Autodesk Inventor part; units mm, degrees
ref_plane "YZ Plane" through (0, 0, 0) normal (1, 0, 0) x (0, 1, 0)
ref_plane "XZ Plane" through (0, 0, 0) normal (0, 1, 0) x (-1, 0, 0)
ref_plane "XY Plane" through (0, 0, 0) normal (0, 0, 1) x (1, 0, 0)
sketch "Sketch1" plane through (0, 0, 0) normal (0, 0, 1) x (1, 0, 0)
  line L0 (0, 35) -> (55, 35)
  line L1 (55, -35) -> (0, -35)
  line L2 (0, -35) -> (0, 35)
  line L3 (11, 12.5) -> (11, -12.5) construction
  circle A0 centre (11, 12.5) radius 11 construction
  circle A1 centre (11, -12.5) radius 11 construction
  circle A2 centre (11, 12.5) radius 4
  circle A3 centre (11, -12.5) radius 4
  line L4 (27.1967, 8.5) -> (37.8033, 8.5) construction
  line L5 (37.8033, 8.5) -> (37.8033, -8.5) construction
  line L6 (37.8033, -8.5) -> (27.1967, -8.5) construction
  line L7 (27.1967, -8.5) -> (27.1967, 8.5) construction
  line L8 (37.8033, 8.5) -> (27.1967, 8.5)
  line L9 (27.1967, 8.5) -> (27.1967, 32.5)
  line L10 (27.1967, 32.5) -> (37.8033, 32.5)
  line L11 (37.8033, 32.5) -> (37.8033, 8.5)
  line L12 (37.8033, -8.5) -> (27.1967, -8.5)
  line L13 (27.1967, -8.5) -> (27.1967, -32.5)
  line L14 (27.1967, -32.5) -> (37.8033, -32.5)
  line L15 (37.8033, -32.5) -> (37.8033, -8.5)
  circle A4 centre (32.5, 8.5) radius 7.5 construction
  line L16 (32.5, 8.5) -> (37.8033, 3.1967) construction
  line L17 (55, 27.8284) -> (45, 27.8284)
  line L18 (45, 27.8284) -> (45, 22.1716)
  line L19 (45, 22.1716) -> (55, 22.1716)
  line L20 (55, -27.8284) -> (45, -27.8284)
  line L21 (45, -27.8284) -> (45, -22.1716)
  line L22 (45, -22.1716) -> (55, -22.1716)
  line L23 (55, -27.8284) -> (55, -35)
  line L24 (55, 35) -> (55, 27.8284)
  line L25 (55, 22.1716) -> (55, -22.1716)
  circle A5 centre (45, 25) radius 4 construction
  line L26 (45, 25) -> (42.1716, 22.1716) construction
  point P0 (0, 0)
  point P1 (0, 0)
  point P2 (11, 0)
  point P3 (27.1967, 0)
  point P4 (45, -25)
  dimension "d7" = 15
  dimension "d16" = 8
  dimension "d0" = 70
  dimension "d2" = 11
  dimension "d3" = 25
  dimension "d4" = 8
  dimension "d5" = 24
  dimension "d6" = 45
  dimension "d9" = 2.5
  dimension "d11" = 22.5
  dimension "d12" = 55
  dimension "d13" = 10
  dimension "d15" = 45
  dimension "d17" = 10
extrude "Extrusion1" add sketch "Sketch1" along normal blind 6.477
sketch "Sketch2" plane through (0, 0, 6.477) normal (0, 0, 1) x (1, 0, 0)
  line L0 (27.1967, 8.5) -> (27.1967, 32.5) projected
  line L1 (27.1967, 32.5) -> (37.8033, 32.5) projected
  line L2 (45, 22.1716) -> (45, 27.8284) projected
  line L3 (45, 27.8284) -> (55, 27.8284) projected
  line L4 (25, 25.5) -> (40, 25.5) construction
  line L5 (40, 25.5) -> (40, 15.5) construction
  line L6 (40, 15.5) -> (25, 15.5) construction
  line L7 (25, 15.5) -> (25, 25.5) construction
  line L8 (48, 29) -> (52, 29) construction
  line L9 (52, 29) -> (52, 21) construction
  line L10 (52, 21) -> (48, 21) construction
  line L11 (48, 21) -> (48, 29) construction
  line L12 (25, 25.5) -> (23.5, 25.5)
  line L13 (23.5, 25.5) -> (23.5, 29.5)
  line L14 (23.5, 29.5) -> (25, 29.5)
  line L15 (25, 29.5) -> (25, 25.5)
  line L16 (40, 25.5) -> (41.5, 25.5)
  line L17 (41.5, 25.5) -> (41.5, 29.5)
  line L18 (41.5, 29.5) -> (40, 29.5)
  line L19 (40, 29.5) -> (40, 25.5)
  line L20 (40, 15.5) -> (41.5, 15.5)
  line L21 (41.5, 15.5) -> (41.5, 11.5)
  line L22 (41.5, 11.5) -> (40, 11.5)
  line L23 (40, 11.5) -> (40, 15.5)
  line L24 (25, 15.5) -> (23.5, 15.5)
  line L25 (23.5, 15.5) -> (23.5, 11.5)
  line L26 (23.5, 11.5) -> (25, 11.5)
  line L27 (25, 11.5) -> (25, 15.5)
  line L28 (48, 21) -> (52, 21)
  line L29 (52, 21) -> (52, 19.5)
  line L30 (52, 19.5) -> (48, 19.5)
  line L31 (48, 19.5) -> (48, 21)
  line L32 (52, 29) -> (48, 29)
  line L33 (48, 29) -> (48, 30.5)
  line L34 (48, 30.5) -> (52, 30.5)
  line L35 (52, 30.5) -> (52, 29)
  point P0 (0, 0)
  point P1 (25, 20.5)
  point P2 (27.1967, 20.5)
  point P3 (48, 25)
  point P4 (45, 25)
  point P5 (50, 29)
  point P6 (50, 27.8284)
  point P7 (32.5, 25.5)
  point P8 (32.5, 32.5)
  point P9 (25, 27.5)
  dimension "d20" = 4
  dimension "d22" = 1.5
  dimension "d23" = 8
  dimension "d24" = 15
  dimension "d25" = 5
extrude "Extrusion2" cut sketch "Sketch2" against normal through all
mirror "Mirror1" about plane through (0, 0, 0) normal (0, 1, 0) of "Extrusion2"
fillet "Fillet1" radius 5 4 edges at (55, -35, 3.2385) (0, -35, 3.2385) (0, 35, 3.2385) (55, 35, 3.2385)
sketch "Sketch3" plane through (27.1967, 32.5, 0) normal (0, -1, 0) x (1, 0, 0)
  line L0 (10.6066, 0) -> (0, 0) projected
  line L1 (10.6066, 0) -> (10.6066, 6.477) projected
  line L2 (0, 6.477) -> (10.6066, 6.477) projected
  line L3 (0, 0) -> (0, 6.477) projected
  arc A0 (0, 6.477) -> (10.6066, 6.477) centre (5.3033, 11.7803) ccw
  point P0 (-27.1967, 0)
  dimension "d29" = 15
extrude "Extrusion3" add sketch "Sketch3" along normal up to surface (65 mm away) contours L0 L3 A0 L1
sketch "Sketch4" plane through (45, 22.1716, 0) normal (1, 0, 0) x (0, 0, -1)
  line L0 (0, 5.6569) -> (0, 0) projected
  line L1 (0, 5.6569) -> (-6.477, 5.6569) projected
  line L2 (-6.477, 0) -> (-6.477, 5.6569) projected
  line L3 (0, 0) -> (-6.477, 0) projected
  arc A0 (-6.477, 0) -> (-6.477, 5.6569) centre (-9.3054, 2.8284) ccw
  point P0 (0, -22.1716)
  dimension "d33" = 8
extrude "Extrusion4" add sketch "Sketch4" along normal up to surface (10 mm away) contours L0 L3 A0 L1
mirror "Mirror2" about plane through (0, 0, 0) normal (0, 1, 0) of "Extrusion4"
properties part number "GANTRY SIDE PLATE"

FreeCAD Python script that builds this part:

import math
import FreeCAD as App
import Part
import Sketcher

V = App.Vector
Q = App.Units.Quantity


def edges_at(feature, points):
    """Names of the edges that pass closest to the given points."""
    edges = feature.Shape.Edges
    near = lambda p: min(range(len(edges)), key=lambda i: edges[i].distToShape(Part.Vertex(*p))[0])
    return sorted({f"Edge{near(p) + 1}" for p in points})

doc = App.newDocument("Part")
body = doc.addObject("PartDesign::Body", "Body")

# Sketch on XY plane
sketch1 = body.newObject("Sketcher::SketchObject", "Sketch")
sketch1.AttachmentSupport = (doc.getObject("XY_Plane"), [""])
sketch1.MapMode = "FlatFace"
sketch1.addGeometry([
    Part.LineSegment(V(55, 35, 0), V(0, 35, 0)),  # 0
    Part.LineSegment(V(0, 35, 0), V(0, -35, 0)),  # 1
    Part.LineSegment(V(0, -35, 0), V(55, -35, 0)),  # 2
    Part.LineSegment(V(55, -35, 0), V(55, -27.8284, 0)),  # 3
    Part.LineSegment(V(55, -27.8284, 0), V(45, -27.8284, 0)),  # 4
    Part.LineSegment(V(45, -27.8284, 0), V(45, -22.1716, 0)),  # 5
    Part.LineSegment(V(45, -22.1716, 0), V(55, -22.1716, 0)),  # 6
    Part.LineSegment(V(55, -22.1716, 0), V(55, 22.1716, 0)),  # 7
    Part.LineSegment(V(55, 22.1716, 0), V(45, 22.1716, 0)),  # 8
    Part.LineSegment(V(45, 22.1716, 0), V(45, 27.8284, 0)),  # 9
    Part.LineSegment(V(45, 27.8284, 0), V(55, 27.8284, 0)),  # 10
    Part.LineSegment(V(55, 27.8284, 0), V(55, 35, 0)),  # 11
    Part.Circle(V(11, -12.5, 0), V(0, 0, 1), 4),  # 12
    Part.LineSegment(V(27.1967, -8.5, 0), V(37.8033, -8.5, 0)),  # 13
    Part.LineSegment(V(37.8033, -8.5, 0), V(37.8033, -32.5, 0)),  # 14
    Part.LineSegment(V(37.8033, -32.5, 0), V(27.1967, -32.5, 0)),  # 15
    Part.LineSegment(V(27.1967, -32.5, 0), V(27.1967, -8.5, 0)),  # 16
    Part.Circle(V(11, 12.5, 0), V(0, 0, 1), 4),  # 17
    Part.LineSegment(V(37.8033, 32.5, 0), V(37.8033, 8.5, 0)),  # 18
    Part.LineSegment(V(37.8033, 8.5, 0), V(27.1967, 8.5, 0)),  # 19
    Part.LineSegment(V(27.1967, 8.5, 0), V(27.1967, 32.5, 0)),  # 20
    Part.LineSegment(V(27.1967, 32.5, 0), V(37.8033, 32.5, 0)),  # 21
], False)
sketch1.addConstraint([
    Sketcher.Constraint("Coincident", 0, 2, 1, 1),
    Sketcher.Constraint("Coincident", 1, 2, 2, 1),
    Sketcher.Constraint("Coincident", 2, 2, 3, 1),
    Sketcher.Constraint("Coincident", 3, 2, 4, 1),
    Sketcher.Constraint("Coincident", 4, 2, 5, 1),
    Sketcher.Constraint("Coincident", 5, 2, 6, 1),
    Sketcher.Constraint("Coincident", 6, 2, 7, 1),
    Sketcher.Constraint("Coincident", 7, 2, 8, 1),
    Sketcher.Constraint("Coincident", 8, 2, 9, 1),
    Sketcher.Constraint("Coincident", 9, 2, 10, 1),
    Sketcher.Constraint("Coincident", 10, 2, 11, 1),
    Sketcher.Constraint("Coincident", 11, 2, 0, 1),
    Sketcher.Constraint("Coincident", 13, 2, 14, 1),
    Sketcher.Constraint("Coincident", 14, 2, 15, 1),
    Sketcher.Constraint("Coincident", 15, 2, 16, 1),
    Sketcher.Constraint("Coincident", 16, 2, 13, 1),
    Sketcher.Constraint("Coincident", 18, 2, 19, 1),
    Sketcher.Constraint("Coincident", 19, 2, 20, 1),
    Sketcher.Constraint("Coincident", 20, 2, 21, 1),
    Sketcher.Constraint("Coincident", 21, 2, 18, 1),
    Sketcher.Constraint("Horizontal", 0),
    Sketcher.Constraint("Vertical", 1),
    Sketcher.Constraint("Horizontal", 2),
    Sketcher.Constraint("Vertical", 3),
    Sketcher.Constraint("Horizontal", 4),
    Sketcher.Constraint("Vertical", 5),
    Sketcher.Constraint("Horizontal", 6),
    Sketcher.Constraint("Vertical", 7),
    Sketcher.Constraint("Horizontal", 8),
    Sketcher.Constraint("Vertical", 9),
    Sketcher.Constraint("Horizontal", 10),
    Sketcher.Constraint("Vertical", 11),
    Sketcher.Constraint("Horizontal", 13),
    Sketcher.Constraint("Vertical", 14),
    Sketcher.Constraint("Horizontal", 15),
    Sketcher.Constraint("Vertical", 16),
    Sketcher.Constraint("Vertical", 18),
    Sketcher.Constraint("Horizontal", 19),
    Sketcher.Constraint("Vertical", 20),
    Sketcher.Constraint("Horizontal", 21),
    Sketcher.Constraint("Equal", 12, 17),
    Sketcher.Constraint("Symmetric", 0, 2, 1, 2, -1, 1),
    Sketcher.Constraint("Symmetric", 12, 3, 17, 3, -1),
    Sketcher.Constraint("Symmetric", 5, 2, 8, 2, -1),
    Sketcher.Constraint("Symmetric", 3, 2, 10, 2, -1),
    Sketcher.Constraint("Symmetric", 13, 2, 18, 2, -1),
    Sketcher.Constraint("Symmetric", 15, 2, 20, 2, -1),
    Sketcher.Constraint("Vertical", 3, 2, 6, 2),
    Sketcher.Constraint("Diameter", 12, Q("8 mm")),
    Sketcher.Constraint("DistanceX", 0, 2, 0, 1, Q("55 mm")),
    Sketcher.Constraint("DistanceX", 4, 2, 4, 1, Q("10 mm")),
    Sketcher.Constraint("DistanceY", 1, 2, 1, 1, Q("70 mm")),
    Sketcher.Constraint("DistanceY", 14, 2, 14, 1, Q("24 mm")),
    Sketcher.Constraint("DistanceX", -1, 1, 12, 3, Q("11 mm")),
    Sketcher.Constraint("DistanceY", 12, 3, 17, 3, Q("25 mm")),
    Sketcher.Constraint("DistanceY", 2, 2, 14, 2, Q("2.5 mm")),
    Sketcher.Constraint("DistanceY", 3, 2, 7, 2, Q("50 mm")),
    Sketcher.Constraint("DistanceX", 13, 1, 13, 2, Q("10.6066 mm")),
    Sketcher.Constraint("DistanceY", 3, 1, 3, 2, Q("7.1716 mm")),
    Sketcher.Constraint("DistanceX", -1, 1, 13, 2, Q("37.8033 mm")),
])
pad1 = body.newObject("PartDesign::Pad", "Pad")
pad1.Profile = sketch1
pad1.Length = 6.477

# Sketch on XY plane
sketch2 = body.newObject("Sketcher::SketchObject", "Sketch001")
sketch2.AttachmentSupport = (doc.getObject("XY_Plane"), [""])
sketch2.MapMode = "FlatFace"
sketch2.AttachmentOffset = App.Placement(V(0, 0, 6.477), App.Rotation())
sketch2.addGeometry([
    Part.LineSegment(V(23.5, 25.5, 0), V(25, 25.5, 0)),  # 0
    Part.LineSegment(V(25, 25.5, 0), V(25, 29.5, 0)),  # 1
    Part.LineSegment(V(25, 29.5, 0), V(23.5, 29.5, 0)),  # 2
    Part.LineSegment(V(23.5, 29.5, 0), V(23.5, 25.5, 0)),  # 3
    Part.LineSegment(V(40, 29.5, 0), V(40, 25.5, 0)),  # 4
    Part.LineSegment(V(40, 25.5, 0), V(41.5, 25.5, 0)),  # 5
    Part.LineSegment(V(41.5, 25.5, 0), V(41.5, 29.5, 0)),  # 6
    Part.LineSegment(V(41.5, 29.5, 0), V(40, 29.5, 0)),  # 7
    Part.LineSegment(V(41.5, 15.5, 0), V(40, 15.5, 0)),  # 8
    Part.LineSegment(V(40, 15.5, 0), V(40, 11.5, 0)),  # 9
    Part.LineSegment(V(40, 11.5, 0), V(41.5, 11.5, 0)),  # 10
    Part.LineSegment(V(41.5, 11.5, 0), V(41.5, 15.5, 0)),  # 11
    Part.LineSegment(V(25, 11.5, 0), V(25, 15.5, 0)),  # 12
    Part.LineSegment(V(25, 15.5, 0), V(23.5, 15.5, 0)),  # 13
    Part.LineSegment(V(23.5, 15.5, 0), V(23.5, 11.5, 0)),  # 14
    Part.LineSegment(V(23.5, 11.5, 0), V(25, 11.5, 0)),  # 15
    Part.LineSegment(V(52, 21, 0), V(48, 21, 0)),  # 16
    Part.LineSegment(V(48, 21, 0), V(48, 19.5, 0)),  # 17
    Part.LineSegment(V(48, 19.5, 0), V(52, 19.5, 0)),  # 18
    Part.LineSegment(V(52, 19.5, 0), V(52, 21, 0)),  # 19
    Part.LineSegment(V(48, 29, 0), V(52, 29, 0)),  # 20
    Part.LineSegment(V(52, 29, 0), V(52, 30.5, 0)),  # 21
    Part.LineSegment(V(52, 30.5, 0), V(48, 30.5, 0)),  # 22
    Part.LineSegment(V(48, 30.5, 0), V(48, 29, 0)),  # 23
], False)
sketch2.addConstraint([
    Sketcher.Constraint("Coincident", 0, 2, 1, 1),
    Sketcher.Constraint("Coincident", 1, 2, 2, 1),
    Sketcher.Constraint("Coincident", 2, 2, 3, 1),
    Sketcher.Constraint("Coincident", 3, 2, 0, 1),
    Sketcher.Constraint("Coincident", 4, 2, 5, 1),
    Sketcher.Constraint("Coincident", 5, 2, 6, 1),
    Sketcher.Constraint("Coincident", 6, 2, 7, 1),
    Sketcher.Constraint("Coincident", 7, 2, 4, 1),
    Sketcher.Constraint("Coincident", 8, 2, 9, 1),
    Sketcher.Constraint("Coincident", 9, 2, 10, 1),
    Sketcher.Constraint("Coincident", 10, 2, 11, 1),
    Sketcher.Constraint("Coincident", 11, 2, 8, 1),
    Sketcher.Constraint("Coincident", 12, 2, 13, 1),
    Sketcher.Constraint("Coincident", 13, 2, 14, 1),
    Sketcher.Constraint("Coincident", 14, 2, 15, 1),
    Sketcher.Constraint("Coincident", 15, 2, 12, 1),
    Sketcher.Constraint("Coincident", 16, 2, 17, 1),
    Sketcher.Constraint("Coincident", 17, 2, 18, 1),
    Sketcher.Constraint("Coincident", 18, 2, 19, 1),
    Sketcher.Constraint("Coincident", 19, 2, 16, 1),
    Sketcher.Constraint("Coincident", 20, 2, 21, 1),
    Sketcher.Constraint("Coincident", 21, 2, 22, 1),
    Sketcher.Constraint("Coincident", 22, 2, 23, 1),
    Sketcher.Constraint("Coincident", 23, 2, 20, 1),
    Sketcher.Constraint("Horizontal", 0),
    Sketcher.Constraint("Vertical", 1),
    Sketcher.Constraint("Horizontal", 2),
    Sketcher.Constraint("Vertical", 3),
    Sketcher.Constraint("Vertical", 4),
    Sketcher.Constraint("Horizontal", 5),
    Sketcher.Constraint("Vertical", 6),
    Sketcher.Constraint("Horizontal", 7),
    Sketcher.Constraint("Horizontal", 8),
    Sketcher.Constraint("Vertical", 9),
    Sketcher.Constraint("Horizontal", 10),
    Sketcher.Constraint("Vertical", 11),
    Sketcher.Constraint("Vertical", 12),
    Sketcher.Constraint("Horizontal", 13),
    Sketcher.Constraint("Vertical", 14),
    Sketcher.Constraint("Horizontal", 15),
    Sketcher.Constraint("Horizontal", 16),
    Sketcher.Constraint("Vertical", 17),
    Sketcher.Constraint("Horizontal", 18),
    Sketcher.Constraint("Vertical", 19),
    Sketcher.Constraint("Horizontal", 20),
    Sketcher.Constraint("Vertical", 21),
    Sketcher.Constraint("Horizontal", 22),
    Sketcher.Constraint("Vertical", 23),
    Sketcher.Constraint("Horizontal", 3, 2, 4, 2),
    Sketcher.Constraint("Horizontal", 2, 2, 6, 2),
    Sketcher.Constraint("Horizontal", 11, 2, 12, 2),
    Sketcher.Constraint("Horizontal", 10, 2, 14, 2),
    Sketcher.Constraint("Vertical", 7, 2, 8, 2),
    Sketcher.Constraint("Vertical", 6, 2, 10, 2),
    Sketcher.Constraint("Vertical", 1, 2, 12, 2),
    Sketcher.Constraint("Vertical", 3, 2, 13, 2),
    Sketcher.Constraint("Vertical", 19, 2, 20, 2),
    Sketcher.Constraint("Vertical", 17, 2, 22, 2),
    Sketcher.Constraint("Equal", 2, 5),
    Sketcher.Constraint("Equal", 22, 1),
    Sketcher.Constraint("Equal", 6, 9),
    Sketcher.Constraint("Equal", 15, 17),
    Sketcher.Constraint("Equal", 19, 21),
    Sketcher.Constraint("DistanceX", 16, 2, 16, 1, Q("4 mm")),
    Sketcher.Constraint("DistanceX", 0, 1, 0, 2, Q("1.5 mm")),
    Sketcher.Constraint("DistanceX", 0, 2, 4, 2, Q("15 mm")),
    Sketcher.Constraint("DistanceX", 4, 2, 16, 2, Q("8 mm")),
    Sketcher.Constraint("DistanceY", 11, 2, 17, 2, Q("4 mm")),
    Sketcher.Constraint("DistanceY", 19, 2, 20, 2, Q("8 mm")),
    Sketcher.Constraint("DistanceY", 5, 2, 22, 2, Q("5 mm")),
    Sketcher.Constraint("DistanceX", -1, 1, 0, 2, Q("25 mm")),
    Sketcher.Constraint("DistanceY", -1, 1, 16, 2, Q("21 mm")),
])
pocket1 = body.newObject("PartDesign::Pocket", "Pocket")
pocket1.Profile = sketch2
pocket1.Type = "ThroughAll"
doc.recompute()

mirrored = body.newObject("PartDesign::Mirrored", "Mirrored")
mirrored.Originals = [pocket1]
mirrored.MirrorPlane = (doc.getObject("XZ_Plane"), [""])
body.Tip = mirrored
doc.recompute()

fillet = body.newObject("PartDesign::Fillet", "Fillet")
fillet.Base = (mirrored, edges_at(mirrored, [
    (55, -35, 3.239),
    (0, -35, 3.239),
    (0, 35, 3.239),
    (55, 35, 3.239),
]))
fillet.Radius = 5

# Sketch on XZ plane
sketch3 = body.newObject("Sketcher::SketchObject", "Sketch002")
sketch3.AttachmentSupport = (doc.getObject("XZ_Plane"), [""])
sketch3.MapMode = "FlatFace"
sketch3.AttachmentOffset = App.Placement(V(0, 0, -32.5), App.Rotation())
sketch3.addGeometry([
    Part.LineSegment(V(27.1967, 0, 0), V(37.8033, 0, 0)),
    Part.LineSegment(V(37.8033, 0, 0), V(37.8033, 6.477, 0)),
    Part.ArcOfCircle(Part.Circle(V(32.5, 11.7803, 0), V(0, 0, 1), 7.499999), math.radians(-135), math.radians(-45)),
    Part.LineSegment(V(27.1967, 6.477, 0), V(27.1967, 0, 0)),
], False)
sketch3.addConstraint([
    Sketcher.Constraint("Coincident", 0, 2, 1, 1),
    Sketcher.Constraint("Coincident", 1, 2, 2, 2),
    Sketcher.Constraint("Coincident", 2, 1, 3, 1),
    Sketcher.Constraint("Coincident", 3, 2, 0, 1),
    Sketcher.Constraint("Horizontal", 0),
    Sketcher.Constraint("Vertical", 1),
    Sketcher.Constraint("Vertical", 3),
    Sketcher.Constraint("PointOnObject", 0, 2, -1),
    Sketcher.Constraint("Horizontal", 1, 2, 2, 1),
    Sketcher.Constraint("Radius", 2, Q("7.5 mm")),
    Sketcher.Constraint("DistanceX", -1, 1, 2, 3, Q("32.5 mm")),
    Sketcher.Constraint("DistanceY", 1, 1, 1, 2, Q("6.477 mm")),
    Sketcher.Constraint("DistanceX", 0, 1, 0, 2, Q("10.6066 mm")),
])
pad2 = body.newObject("PartDesign::Pad", "Pad001")
pad2.Profile = sketch3
pad2.Length = 65

# Sketch on YZ plane
sketch4 = body.newObject("Sketcher::SketchObject", "Sketch003")
sketch4.AttachmentSupport = (doc.getObject("YZ_Plane"), [""])
sketch4.MapMode = "FlatFace"
sketch4.AttachmentOffset = App.Placement(V(0, 0, 45), App.Rotation())
sketch4.addGeometry([
    Part.LineSegment(V(22.1716, 0, 0), V(27.8285, 0, 0)),
    Part.LineSegment(V(27.8285, 0, 0), V(27.8285, 6.477, 0)),
    Part.ArcOfCircle(Part.Circle(V(25, 9.3054, 0), V(0, 0, 1), 3.999962), math.radians(-135), math.radians(-44.998987)),
    Part.LineSegment(V(22.1716, 6.477, 0), V(22.1716, 0, 0)),
], False)
sketch4.addConstraint([
    Sketcher.Constraint("Coincident", 0, 2, 1, 1),
    Sketcher.Constraint("Coincident", 1, 2, 2, 2),
    Sketcher.Constraint("Coincident", 2, 1, 3, 1),
    Sketcher.Constraint("Coincident", 3, 2, 0, 1),
    Sketcher.Constraint("Horizontal", 0),
    Sketcher.Constraint("Vertical", 1),
    Sketcher.Constraint("Vertical", 3),
    Sketcher.Constraint("PointOnObject", 0, 2, -1),
    Sketcher.Constraint("Horizontal", 1, 2, 2, 1),
    Sketcher.Constraint("Radius", 2, Q("4 mm")),
    Sketcher.Constraint("DistanceX", -1, 1, 2, 3, Q("25 mm")),
    Sketcher.Constraint("DistanceX", 0, 1, 0, 2, Q("5.657 mm")),
    Sketcher.Constraint("DistanceY", 1, 1, 1, 2, Q("6.477 mm")),
])
pad3 = body.newObject("PartDesign::Pad", "Pad002")
pad3.Profile = sketch4
pad3.Length = 10
doc.recompute()

mirrored2 = body.newObject("PartDesign::Mirrored", "Mirrored001")
mirrored2.Originals = [pad3]
mirrored2.MirrorPlane = (doc.getObject("XZ_Plane"), [""])
body.Tip = mirrored2

doc.recompute()
